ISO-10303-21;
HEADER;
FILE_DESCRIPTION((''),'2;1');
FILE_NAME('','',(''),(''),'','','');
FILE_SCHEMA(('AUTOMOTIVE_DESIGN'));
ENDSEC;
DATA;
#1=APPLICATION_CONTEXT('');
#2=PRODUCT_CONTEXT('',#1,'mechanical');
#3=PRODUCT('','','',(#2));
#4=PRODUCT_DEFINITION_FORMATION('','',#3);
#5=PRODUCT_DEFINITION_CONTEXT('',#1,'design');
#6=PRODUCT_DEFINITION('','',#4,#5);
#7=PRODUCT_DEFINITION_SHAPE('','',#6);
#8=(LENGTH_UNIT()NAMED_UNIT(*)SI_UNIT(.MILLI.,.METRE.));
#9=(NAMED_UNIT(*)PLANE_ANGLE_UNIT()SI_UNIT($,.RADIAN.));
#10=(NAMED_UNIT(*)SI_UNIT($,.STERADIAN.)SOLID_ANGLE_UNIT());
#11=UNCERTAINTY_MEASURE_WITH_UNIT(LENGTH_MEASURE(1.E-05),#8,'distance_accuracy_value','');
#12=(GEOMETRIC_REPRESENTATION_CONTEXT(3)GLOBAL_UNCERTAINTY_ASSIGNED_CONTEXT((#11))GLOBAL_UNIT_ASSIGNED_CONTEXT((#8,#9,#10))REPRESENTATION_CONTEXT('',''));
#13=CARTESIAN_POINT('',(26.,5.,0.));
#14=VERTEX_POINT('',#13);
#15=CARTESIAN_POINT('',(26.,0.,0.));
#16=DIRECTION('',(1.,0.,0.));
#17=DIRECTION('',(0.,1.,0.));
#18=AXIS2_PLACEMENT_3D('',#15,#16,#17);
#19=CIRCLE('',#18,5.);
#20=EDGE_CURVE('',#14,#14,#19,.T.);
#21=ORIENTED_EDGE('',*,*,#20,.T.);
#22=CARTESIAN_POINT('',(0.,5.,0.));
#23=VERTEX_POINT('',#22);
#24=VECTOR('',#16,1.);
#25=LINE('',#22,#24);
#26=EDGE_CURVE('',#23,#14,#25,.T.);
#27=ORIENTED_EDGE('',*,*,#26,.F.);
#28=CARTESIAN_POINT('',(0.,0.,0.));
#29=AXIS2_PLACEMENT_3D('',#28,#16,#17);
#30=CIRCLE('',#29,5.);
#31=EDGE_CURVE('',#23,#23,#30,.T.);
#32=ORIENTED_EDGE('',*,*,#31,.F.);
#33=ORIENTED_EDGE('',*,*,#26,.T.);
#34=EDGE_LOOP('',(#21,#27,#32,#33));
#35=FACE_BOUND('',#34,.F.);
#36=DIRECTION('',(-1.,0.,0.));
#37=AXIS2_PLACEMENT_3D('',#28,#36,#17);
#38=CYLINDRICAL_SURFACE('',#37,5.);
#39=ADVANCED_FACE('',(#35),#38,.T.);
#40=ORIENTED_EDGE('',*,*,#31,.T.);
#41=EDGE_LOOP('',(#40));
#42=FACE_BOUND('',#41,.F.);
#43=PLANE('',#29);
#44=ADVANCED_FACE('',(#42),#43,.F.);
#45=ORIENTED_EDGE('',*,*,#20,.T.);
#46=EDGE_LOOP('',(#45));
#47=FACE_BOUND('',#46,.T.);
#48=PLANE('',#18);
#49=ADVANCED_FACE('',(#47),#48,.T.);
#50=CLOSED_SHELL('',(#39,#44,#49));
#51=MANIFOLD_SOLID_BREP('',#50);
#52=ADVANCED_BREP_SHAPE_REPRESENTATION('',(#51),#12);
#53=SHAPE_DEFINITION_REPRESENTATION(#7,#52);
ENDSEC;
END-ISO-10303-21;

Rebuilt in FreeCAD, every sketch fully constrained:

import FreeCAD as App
import Part
import Sketcher
from FreeCAD import Vector

doc = App.newDocument("Part")
body = doc.addObject("PartDesign::Body", "Body")

# Sketch on YZ plane
sketch1 = body.newObject("Sketcher::SketchObject", "Sketch")
sketch1.AttachmentSupport = (doc.getObject("YZ_Plane"), [""])
sketch1.MapMode = "FlatFace"
sketch1.addGeometry(Part.Circle(Vector(0, 0, 0), Vector(0, 0, 1), 5), False)
sketch1.addConstraint(Sketcher.Constraint("Coincident", 0, 3, -1, 1))
sketch1.addConstraint(Sketcher.Constraint("Diameter", 0, 10.0))
pad1 = body.newObject("PartDesign::Pad", "Pad")
pad1.Profile = sketch1
pad1.Length = 26

doc.recompute()
